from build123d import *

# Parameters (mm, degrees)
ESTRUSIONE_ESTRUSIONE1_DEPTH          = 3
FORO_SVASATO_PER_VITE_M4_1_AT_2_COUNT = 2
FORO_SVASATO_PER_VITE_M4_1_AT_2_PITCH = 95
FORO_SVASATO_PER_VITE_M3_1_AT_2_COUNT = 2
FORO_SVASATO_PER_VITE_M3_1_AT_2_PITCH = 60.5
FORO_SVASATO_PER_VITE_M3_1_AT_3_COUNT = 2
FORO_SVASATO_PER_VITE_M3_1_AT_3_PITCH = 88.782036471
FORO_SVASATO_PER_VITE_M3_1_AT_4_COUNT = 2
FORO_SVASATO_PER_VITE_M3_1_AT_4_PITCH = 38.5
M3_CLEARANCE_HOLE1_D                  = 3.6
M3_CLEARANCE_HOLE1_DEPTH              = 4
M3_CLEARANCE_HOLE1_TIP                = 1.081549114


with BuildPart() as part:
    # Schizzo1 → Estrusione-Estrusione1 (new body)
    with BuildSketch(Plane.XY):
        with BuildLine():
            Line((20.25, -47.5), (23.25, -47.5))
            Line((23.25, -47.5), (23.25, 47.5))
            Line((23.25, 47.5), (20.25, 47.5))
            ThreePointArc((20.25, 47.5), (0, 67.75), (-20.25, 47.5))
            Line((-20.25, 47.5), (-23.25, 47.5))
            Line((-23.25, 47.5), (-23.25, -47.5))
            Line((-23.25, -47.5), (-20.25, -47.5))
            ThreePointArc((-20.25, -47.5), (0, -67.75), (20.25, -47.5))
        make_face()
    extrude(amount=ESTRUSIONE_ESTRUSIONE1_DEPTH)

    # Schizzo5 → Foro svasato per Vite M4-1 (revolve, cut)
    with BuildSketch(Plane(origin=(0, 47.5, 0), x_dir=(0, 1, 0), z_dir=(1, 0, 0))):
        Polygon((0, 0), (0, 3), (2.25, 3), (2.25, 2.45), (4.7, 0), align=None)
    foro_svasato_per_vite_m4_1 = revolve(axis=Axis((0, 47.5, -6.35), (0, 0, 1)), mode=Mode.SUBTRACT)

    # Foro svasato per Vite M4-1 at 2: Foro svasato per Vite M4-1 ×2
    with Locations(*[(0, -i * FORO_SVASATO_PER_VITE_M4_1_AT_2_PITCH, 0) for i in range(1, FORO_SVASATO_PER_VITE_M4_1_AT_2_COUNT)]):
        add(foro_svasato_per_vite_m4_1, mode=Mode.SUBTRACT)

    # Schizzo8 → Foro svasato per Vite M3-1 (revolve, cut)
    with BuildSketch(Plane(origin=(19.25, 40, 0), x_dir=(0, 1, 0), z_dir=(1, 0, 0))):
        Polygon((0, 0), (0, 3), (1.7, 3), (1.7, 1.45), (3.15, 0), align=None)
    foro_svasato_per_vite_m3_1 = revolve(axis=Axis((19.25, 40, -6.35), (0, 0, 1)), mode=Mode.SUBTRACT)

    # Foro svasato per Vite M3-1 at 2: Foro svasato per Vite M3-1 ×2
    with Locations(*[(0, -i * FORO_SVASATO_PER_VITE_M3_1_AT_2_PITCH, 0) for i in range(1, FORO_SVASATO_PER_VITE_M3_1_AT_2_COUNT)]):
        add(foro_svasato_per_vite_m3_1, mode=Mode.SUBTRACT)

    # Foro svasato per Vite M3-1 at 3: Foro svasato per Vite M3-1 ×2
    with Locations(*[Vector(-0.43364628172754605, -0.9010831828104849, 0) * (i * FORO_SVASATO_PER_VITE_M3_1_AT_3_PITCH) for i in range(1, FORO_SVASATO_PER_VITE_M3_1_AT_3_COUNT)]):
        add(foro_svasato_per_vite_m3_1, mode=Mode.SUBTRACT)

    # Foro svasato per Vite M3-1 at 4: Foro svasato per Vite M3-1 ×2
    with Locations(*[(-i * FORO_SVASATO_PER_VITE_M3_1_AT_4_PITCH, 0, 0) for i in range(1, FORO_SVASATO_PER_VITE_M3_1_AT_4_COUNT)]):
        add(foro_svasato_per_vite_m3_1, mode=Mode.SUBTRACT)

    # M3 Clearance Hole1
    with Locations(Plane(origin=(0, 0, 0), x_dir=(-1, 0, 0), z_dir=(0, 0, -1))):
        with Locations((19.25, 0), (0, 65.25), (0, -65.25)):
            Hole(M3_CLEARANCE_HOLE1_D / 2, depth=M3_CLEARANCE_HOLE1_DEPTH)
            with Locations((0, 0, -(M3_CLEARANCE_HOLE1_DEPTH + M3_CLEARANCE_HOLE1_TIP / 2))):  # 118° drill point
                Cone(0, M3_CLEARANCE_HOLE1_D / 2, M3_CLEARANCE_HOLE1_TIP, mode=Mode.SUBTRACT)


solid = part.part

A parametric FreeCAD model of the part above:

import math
import FreeCAD as App
import Part
import Sketcher

V = App.Vector
Q = App.Units.Quantity


def add_polygon(sketch, points):
    """Adds a closed chain of lines whose ends are joined by coincident constraints."""
    first, n = sketch.GeometryCount, len(points)
    for a, b in zip(points, points[1:] + points[:1]):
        sketch.addGeometry(Part.LineSegment(App.Vector(*a, 0), App.Vector(*b, 0)), False)
    for i in range(n):
        sketch.addConstraint(Sketcher.Constraint("Coincident", first + i, 2, first + (i + 1) % n, 1))

doc = App.newDocument("Part")
body = doc.addObject("PartDesign::Body", "Body")

sketch1 = doc.addObject("Sketcher::SketchObject", "Sketch")
body.addObject(sketch1)
sketch1.AttachmentSupport = (doc.XY_Plane, [""])
sketch1.MapMode = "FlatFace"
sketch1.addGeometry([
    Part.LineSegment(V(20.2, -47.5, 0), V(23.2, -47.5, 0)),
    Part.LineSegment(V(23.2, -47.5, 0), V(23.2, 47.5, 0)),
    Part.LineSegment(V(23.2, 47.5, 0), V(20.2, 47.5, 0)),
    Part.ArcOfCircle(Part.Circle(V(0, 47.5, 0), V(0, 0, 1), 20.2), math.radians(0), math.radians(180)),
    Part.LineSegment(V(-20.2, 47.5, 0), V(-23.2, 47.5, 0)),
    Part.LineSegment(V(-23.2, 47.5, 0), V(-23.2, -47.5, 0)),
    Part.LineSegment(V(-23.2, -47.5, 0), V(-20.2, -47.5, 0)),
    Part.ArcOfCircle(Part.Circle(V(0, -47.5, 0), V(0, 0, 1), 20.2), math.radians(180), math.radians(360)),
], False)
sketch1.addConstraint([
    Sketcher.Constraint("Coincident", 0, 2, 1, 1),
    Sketcher.Constraint("Coincident", 1, 2, 2, 1),
    Sketcher.Constraint("Coincident", 2, 2, 3, 1),
    Sketcher.Constraint("Coincident", 3, 2, 4, 1),
    Sketcher.Constraint("Coincident", 4, 2, 5, 1),
    Sketcher.Constraint("Coincident", 5, 2, 6, 1),
    Sketcher.Constraint("Coincident", 6, 2, 7, 1),
    Sketcher.Constraint("Coincident", 7, 2, 0, 1),
    Sketcher.Constraint("Horizontal", 0),
    Sketcher.Constraint("Vertical", 1),
    Sketcher.Constraint("Horizontal", 2),
    Sketcher.Constraint("Horizontal", 4),
    Sketcher.Constraint("Vertical", 5),
    Sketcher.Constraint("Horizontal", 6),
    Sketcher.Constraint("Equal", 3, 7),
    Sketcher.Constraint("Symmetric", 3, 3, 7, 3, -1, 1),
    Sketcher.Constraint("Symmetric", 0, 2, 4, 2, -1, 1),
    Sketcher.Constraint("Symmetric", 2, 2, 3, 2, -2),
    Sketcher.Constraint("Horizontal", 7, 3, 0, 2),
    Sketcher.Constraint("Horizontal", 0, 2, 5, 2),
    Sketcher.Constraint("DistanceX", 0, 1, 0, 2, Q("3 mm")),
    Sketcher.Constraint("DistanceY", 1, 1, 1, 2, Q("95 mm")),
    Sketcher.Constraint("Radius", 3, Q("20.25 mm")),
])
pad1 = doc.addObject("PartDesign::Pad", "Pad")
body.addObject(pad1)
pad1.Profile = sketch1
pad1.Length = 3

sketch2 = doc.addObject("Sketcher::SketchObject", "Sketch001")
body.addObject(sketch2)
sketch2.AttachmentSupport = (doc.YZ_Plane, [""])
sketch2.MapMode = "FlatFace"
add_polygon(sketch2, [(47.5, 3), (47.5, 0), (52.2, 0), (49.8, 2.5), (49.8, 3)])
sketch2.addGeometry(Part.LineSegment(V(47.5, 0, 0), V(47.5, 3, 0)), True)
sketch2.addConstraint([
    Sketcher.Constraint("Vertical", 0),
    Sketcher.Constraint("Horizontal", 1),
    Sketcher.Constraint("Vertical", 3),
    Sketcher.Constraint("Horizontal", 4),
    Sketcher.Constraint("Vertical", 5),
    Sketcher.Constraint("Coincident", 5, 1, 0, 2),
    Sketcher.Constraint("PointOnObject", 0, 2, -1),
    Sketcher.Constraint("Horizontal", 3, 2, 5, 2),
    Sketcher.Constraint("DistanceY", 0, 2, 0, 1, Q("3 mm")),
    Sketcher.Constraint("Angle", 2, Q("135 deg")),
    Sketcher.Constraint("DistanceX", 1, 1, 1, 2, Q("4.7 mm")),
    Sketcher.Constraint("DistanceX", 4, 2, 4, 1, Q("2.25 mm")),
    Sketcher.Constraint("DistanceX", -1, 1, 0, 2, Q("47.5 mm")),
])
groove = doc.addObject("PartDesign::Groove", "Groove")
body.addObject(groove)
groove.Profile = sketch2
groove.ReferenceAxis = (sketch2, ["Axis0"])
groove.Angle = 360
doc.recompute()

linearpattern = doc.addObject("PartDesign::LinearPattern", "LinearPattern")
body.addObject(linearpattern)
linearpattern.Originals = [groove]
linearpattern.Direction = (doc.Y_Axis, [""])
linearpattern.Mode = "offset"
linearpattern.Offset = 95
linearpattern.Occurrences = 2
linearpattern.Reversed = True
body.Tip = linearpattern

sketch3 = doc.addObject("Sketcher::SketchObject", "Sketch002")
body.addObject(sketch3)
sketch3.AttachmentSupport = (doc.YZ_Plane, [""])
sketch3.MapMode = "FlatFace"
sketch3.AttachmentOffset = App.Placement(V(0, 0, 19.25), App.Rotation())
add_polygon(sketch3, [(40, 3), (40, 0), (43.1, 0), (41.7, 1.4), (41.7, 3)])
sketch3.addGeometry(Part.LineSegment(V(40, 0, 0), V(40, 3, 0)), True)
sketch3.addConstraint([
    Sketcher.Constraint("Vertical", 0),
    Sketcher.Constraint("Horizontal", 1),
    Sketcher.Constraint("Vertical", 3),
    Sketcher.Constraint("Horizontal", 4),
    Sketcher.Constraint("Vertical", 5),
    Sketcher.Constraint("Coincident", 5, 1, 0, 2),
    Sketcher.Constraint("PointOnObject", 0, 2, -1),
    Sketcher.Constraint("Horizontal", 3, 2, 5, 2),
    Sketcher.Constraint("DistanceY", 0, 2, 0, 1, Q("3 mm")),
    Sketcher.Constraint("Angle", 2, Q("135 deg")),
    Sketcher.Constraint("DistanceX", 4, 2, 4, 1, Q("1.7 mm")),
    Sketcher.Constraint("DistanceX", -1, 1, 0, 2, Q("40 mm")),
    Sketcher.Constraint("DistanceX", 1, 1, 1, 2, Q("3.15 mm")),
])
groove2 = doc.addObject("PartDesign::Groove", "Groove001")
body.addObject(groove2)
groove2.Profile = sketch3
groove2.ReferenceAxis = (sketch3, ["Axis0"])
groove2.Angle = 360
doc.recompute()

linearpattern2 = doc.addObject("PartDesign::LinearPattern", "LinearPattern001")
body.addObject(linearpattern2)
linearpattern2.Originals = [groove2]
linearpattern2.Direction = (doc.Y_Axis, [""])
linearpattern2.Mode = "offset"
linearpattern2.Offset = 60.5
linearpattern2.Occurrences = 2
linearpattern2.Reversed = True
body.Tip = linearpattern2
doc.recompute()

datumline = doc.addObject("PartDesign::Line", "DatumLine")
body.addObject(datumline)
datumline.Placement = App.Placement(V(0, 0, 0), App.Rotation(V(0, 0, 1), V(-0.433646282, -0.901083183, 0)))
linearpattern3 = doc.addObject("PartDesign::LinearPattern", "LinearPattern002")
body.addObject(linearpattern3)
linearpattern3.Originals = [groove2]
linearpattern3.Direction = (datumline, [""])
linearpattern3.Mode = "offset"
linearpattern3.Offset = 88.782036
linearpattern3.Occurrences = 2
body.Tip = linearpattern3
doc.recompute()

linearpattern4 = doc.addObject("PartDesign::LinearPattern", "LinearPattern003")
body.addObject(linearpattern4)
linearpattern4.Originals = [groove2]
linearpattern4.Direction = (doc.X_Axis, [""])
linearpattern4.Mode = "offset"
linearpattern4.Offset = 38.5
linearpattern4.Occurrences = 2
linearpattern4.Reversed = True
body.Tip = linearpattern4

sketch4 = doc.addObject("Sketcher::SketchObject", "Sketch003")
body.addObject(sketch4)
sketch4.AttachmentSupport = (doc.XY_Plane, [""])
sketch4.MapMode = "FlatFace"
sketch4.addGeometry([
    Part.Circle(V(-19.2, 0, 0), V(0, 0, 1), 1.8),
    Part.Circle(V(0, 65.2, 0), V(0, 0, 1), 1.8),
    Part.Circle(V(0, -65.2, 0), V(0, 0, 1), 1.8),
], False)
sketch4.addConstraint([
    Sketcher.Constraint("Equal", 0, 1),
    Sketcher.Constraint("Equal", 1, 2),
    Sketcher.Constraint("Symmetric", 1, 3, 2, 3, -1, 1),
    Sketcher.Constraint("PointOnObject", 0, 3, -1),
    Sketcher.Constraint("PointOnObject", 1, 3, -2),
    Sketcher.Constraint("Diameter", 0, Q("3.6 mm")),
    Sketcher.Constraint("DistanceY", 2, 3, 1, 3, Q("130.5 mm")),
    Sketcher.Constraint("DistanceX", 0, 3, -1, 1, Q("19.25 mm")),
])
doc.recompute()
hole = doc.addObject("PartDesign::Hole", "Hole")
body.addObject(hole)
hole.Profile = sketch4
hole.ThreadType = "None"
hole.Diameter = 3.6
hole.DepthType = "Dimension"
hole.Depth = 4
hole.DrillPoint = "Angled"
hole.DrillPointAngle = 118
hole.Reversed = True

doc.recompute()
